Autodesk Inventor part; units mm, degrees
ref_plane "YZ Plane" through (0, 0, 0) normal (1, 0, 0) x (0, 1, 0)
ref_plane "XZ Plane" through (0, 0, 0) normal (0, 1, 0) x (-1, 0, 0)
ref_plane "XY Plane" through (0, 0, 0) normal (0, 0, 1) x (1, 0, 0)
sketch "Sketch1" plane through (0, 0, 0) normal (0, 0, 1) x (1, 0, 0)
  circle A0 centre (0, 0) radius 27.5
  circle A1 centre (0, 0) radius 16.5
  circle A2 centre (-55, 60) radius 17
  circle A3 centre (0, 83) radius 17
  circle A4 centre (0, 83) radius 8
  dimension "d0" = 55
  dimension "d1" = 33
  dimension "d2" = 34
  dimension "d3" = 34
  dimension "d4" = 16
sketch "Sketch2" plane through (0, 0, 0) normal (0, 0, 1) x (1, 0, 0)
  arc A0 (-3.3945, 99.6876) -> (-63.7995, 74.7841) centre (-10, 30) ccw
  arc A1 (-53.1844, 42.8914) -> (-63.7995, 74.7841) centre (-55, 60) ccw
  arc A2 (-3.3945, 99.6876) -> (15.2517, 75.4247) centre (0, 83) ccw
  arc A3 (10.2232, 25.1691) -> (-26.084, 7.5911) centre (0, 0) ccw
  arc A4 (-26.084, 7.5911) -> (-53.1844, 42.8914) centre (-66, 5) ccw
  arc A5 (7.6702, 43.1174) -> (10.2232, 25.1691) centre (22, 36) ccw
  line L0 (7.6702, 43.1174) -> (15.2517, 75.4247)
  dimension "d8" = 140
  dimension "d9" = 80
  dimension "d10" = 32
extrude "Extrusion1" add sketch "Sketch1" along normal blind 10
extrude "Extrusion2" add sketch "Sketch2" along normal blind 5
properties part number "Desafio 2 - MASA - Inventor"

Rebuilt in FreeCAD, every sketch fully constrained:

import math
import FreeCAD as App
import Part
import Sketcher
from FreeCAD import Vector

doc = App.newDocument("Part")
params = doc.addObject("Spreadsheet::Sheet", "Params")
for row, (alias, value) in enumerate([
    ("sketch1_diameter", "55 mm"),
    ("sketch1_diameter2", "33 mm"),
    ("sketch1_diameter3", "34 mm"),
    ("sketch1_diameter4", "16 mm"),
    ("pad1_length", "10 mm"),
    ("sketch2_radius", "70 mm"),
    ("sketch2_radius2", "40 mm"),
    ("sketch2_radius3", "16 mm"),
    ("pad2_length", "5 mm"),
], start=1):
    params.set(f"A{row}", alias)
    params.set(f"B{row}", "=" + value)
    params.setAlias(f"B{row}", alias)

body = doc.addObject("PartDesign::Body", "Body")
body.AllowCompound = True

# Sketch on XY plane
sketch1 = body.newObject("Sketcher::SketchObject", "Sketch")
sketch1.AttachmentSupport = (doc.getObject("XY_Plane"), [""])
sketch1.MapMode = "FlatFace"
sketch1.addGeometry([
    Part.Circle(Vector(0, 0, 0), Vector(0, 0, 1), 28),  # 0
    Part.Circle(Vector(0, 0, 0), Vector(0, 0, 1), 16),  # 1
    Part.Circle(Vector(-55, 60, 0), Vector(0, 0, 1), 17),  # 2
    Part.Circle(Vector(0, 83, 0), Vector(0, 0, 1), 17),  # 3
    Part.Circle(Vector(0, 83, 0), Vector(0, 0, 1), 8),  # 4
], False)
sketch1.addConstraint([
    Sketcher.Constraint("Coincident", 0, 3, -1, 1),
    Sketcher.Constraint("Coincident", 1, 3, -1, 1),
    Sketcher.Constraint("Coincident", 4, 3, 3, 3),
    Sketcher.Constraint("Equal", 2, 3),
    Sketcher.Constraint("PointOnObject", 3, 3, -2),
    Sketcher.Constraint("Diameter", 0, 55.0),
    Sketcher.Constraint("Diameter", 1, 33.0),
    Sketcher.Constraint("Diameter", 2, 34.0),
    Sketcher.Constraint("Diameter", 4, 16.0),
    Sketcher.Constraint("DistanceX", 2, 3, -1, 1, 55.0),
    Sketcher.Constraint("DistanceY", -1, 1, 2, 3, 60.0),
    Sketcher.Constraint("DistanceY", -1, 1, 3, 3, 83.0),
])
sketch1.setExpression("Constraints[5]", "Params.sketch1_diameter")
sketch1.setExpression("Constraints[6]", "Params.sketch1_diameter2")
sketch1.setExpression("Constraints[7]", "Params.sketch1_diameter3")
sketch1.setExpression("Constraints[8]", "Params.sketch1_diameter4")
pad1 = body.newObject("PartDesign::Pad", "Pad")
pad1.Profile = sketch1
pad1.setExpression("Length", "Params.pad1_length")

# Sketch on XY plane
sketch2 = body.newObject("Sketcher::SketchObject", "Sketch001")
sketch2.AttachmentSupport = (doc.getObject("XY_Plane"), [""])
sketch2.MapMode = "FlatFace"
sketch2.addGeometry([
    Part.ArcOfCircle(Part.Circle(Vector(0, 83, 0), Vector(0, 0, 1), 17), math.radians(101), math.radians(334)),  # 0
    Part.ArcOfCircle(Part.Circle(Vector(-10, 30, 0), Vector(0, 0, 1), 70), math.radians(85), math.radians(140)),  # 1
    Part.ArcOfCircle(Part.Circle(Vector(-55, 60, 0), Vector(0, 0, 1), 17), math.radians(-84), math.radians(121)),  # 2
    Part.ArcOfCircle(Part.Circle(Vector(-66, 5, 0), Vector(0, 0, 1), 40), math.radians(4), math.radians(71)),  # 3
    Part.ArcOfCircle(Part.Circle(Vector(0, 0, 0), Vector(0, 0, 1), 27), math.radians(68), math.radians(164)),  # 4
    Part.ArcOfCircle(Part.Circle(Vector(22, 36, 0), Vector(0, 0, 1), 16), math.radians(154), math.radians(223)),  # 5
    Part.LineSegment(Vector(8, 43, 0), Vector(15, 75, 0)),  # 6
], False)
sketch2.addConstraint([
    Sketcher.Constraint("Coincident", 0, 1, 1, 1),
    Sketcher.Constraint("Coincident", 1, 2, 2, 2),
    Sketcher.Constraint("Coincident", 2, 1, 3, 2),
    Sketcher.Constraint("Coincident", 3, 1, 4, 2),
    Sketcher.Constraint("Coincident", 4, 1, 5, 2),
    Sketcher.Constraint("Coincident", 5, 1, 6, 1),
    Sketcher.Constraint("Coincident", 6, 2, 0, 2),
    Sketcher.Constraint("Coincident", 4, 3, -1, 1),
    Sketcher.Constraint("PointOnObject", 0, 3, -2),
    Sketcher.Constraint("Radius", 1, 70.0),
    Sketcher.Constraint("Radius", 3, 40.0),
    Sketcher.Constraint("Radius", 5, 16.0),
    Sketcher.Constraint("DistanceX", 1, 3, 5, 3, 32.0),
    Sketcher.Constraint("DistanceY", -1, 1, 0, 3, 83.0),
    Sketcher.Constraint("DistanceX", 1, 3, -1, 1, 10.0),
    Sketcher.Constraint("DistanceY", -1, 1, 1, 3, 30.0),
    Sketcher.Constraint("DistanceX", 2, 3, -1, 1, 55.0),
    Sketcher.Constraint("DistanceY", -1, 1, 2, 3, 60.0),
    Sketcher.Constraint("DistanceX", 3, 3, -1, 1, 66.0),
    Sketcher.Constraint("DistanceY", -1, 1, 3, 3, 5.0),
    Sketcher.Constraint("DistanceY", -1, 1, 5, 3, 36.0),
    Sketcher.Constraint("Radius", 4, 27.166),
    Sketcher.Constraint("Radius", 0, 17.0293),
    Sketcher.Constraint("Radius", 2, 17.2047),
    Sketcher.Constraint("Distance", 6, 33.185),
    Sketcher.Constraint("DistanceX", 5, 1, 4, 1, 2.553),
])
sketch2.setExpression("Constraints[9]", "Params.sketch2_radius")
sketch2.setExpression("Constraints[10]", "Params.sketch2_radius2")
sketch2.setExpression("Constraints[11]", "Params.sketch2_radius3")
pad2 = body.newObject("PartDesign::Pad", "Pad001")
pad2.Profile = sketch2
pad2.setExpression("Length", "Params.pad2_length")

doc.recompute()
